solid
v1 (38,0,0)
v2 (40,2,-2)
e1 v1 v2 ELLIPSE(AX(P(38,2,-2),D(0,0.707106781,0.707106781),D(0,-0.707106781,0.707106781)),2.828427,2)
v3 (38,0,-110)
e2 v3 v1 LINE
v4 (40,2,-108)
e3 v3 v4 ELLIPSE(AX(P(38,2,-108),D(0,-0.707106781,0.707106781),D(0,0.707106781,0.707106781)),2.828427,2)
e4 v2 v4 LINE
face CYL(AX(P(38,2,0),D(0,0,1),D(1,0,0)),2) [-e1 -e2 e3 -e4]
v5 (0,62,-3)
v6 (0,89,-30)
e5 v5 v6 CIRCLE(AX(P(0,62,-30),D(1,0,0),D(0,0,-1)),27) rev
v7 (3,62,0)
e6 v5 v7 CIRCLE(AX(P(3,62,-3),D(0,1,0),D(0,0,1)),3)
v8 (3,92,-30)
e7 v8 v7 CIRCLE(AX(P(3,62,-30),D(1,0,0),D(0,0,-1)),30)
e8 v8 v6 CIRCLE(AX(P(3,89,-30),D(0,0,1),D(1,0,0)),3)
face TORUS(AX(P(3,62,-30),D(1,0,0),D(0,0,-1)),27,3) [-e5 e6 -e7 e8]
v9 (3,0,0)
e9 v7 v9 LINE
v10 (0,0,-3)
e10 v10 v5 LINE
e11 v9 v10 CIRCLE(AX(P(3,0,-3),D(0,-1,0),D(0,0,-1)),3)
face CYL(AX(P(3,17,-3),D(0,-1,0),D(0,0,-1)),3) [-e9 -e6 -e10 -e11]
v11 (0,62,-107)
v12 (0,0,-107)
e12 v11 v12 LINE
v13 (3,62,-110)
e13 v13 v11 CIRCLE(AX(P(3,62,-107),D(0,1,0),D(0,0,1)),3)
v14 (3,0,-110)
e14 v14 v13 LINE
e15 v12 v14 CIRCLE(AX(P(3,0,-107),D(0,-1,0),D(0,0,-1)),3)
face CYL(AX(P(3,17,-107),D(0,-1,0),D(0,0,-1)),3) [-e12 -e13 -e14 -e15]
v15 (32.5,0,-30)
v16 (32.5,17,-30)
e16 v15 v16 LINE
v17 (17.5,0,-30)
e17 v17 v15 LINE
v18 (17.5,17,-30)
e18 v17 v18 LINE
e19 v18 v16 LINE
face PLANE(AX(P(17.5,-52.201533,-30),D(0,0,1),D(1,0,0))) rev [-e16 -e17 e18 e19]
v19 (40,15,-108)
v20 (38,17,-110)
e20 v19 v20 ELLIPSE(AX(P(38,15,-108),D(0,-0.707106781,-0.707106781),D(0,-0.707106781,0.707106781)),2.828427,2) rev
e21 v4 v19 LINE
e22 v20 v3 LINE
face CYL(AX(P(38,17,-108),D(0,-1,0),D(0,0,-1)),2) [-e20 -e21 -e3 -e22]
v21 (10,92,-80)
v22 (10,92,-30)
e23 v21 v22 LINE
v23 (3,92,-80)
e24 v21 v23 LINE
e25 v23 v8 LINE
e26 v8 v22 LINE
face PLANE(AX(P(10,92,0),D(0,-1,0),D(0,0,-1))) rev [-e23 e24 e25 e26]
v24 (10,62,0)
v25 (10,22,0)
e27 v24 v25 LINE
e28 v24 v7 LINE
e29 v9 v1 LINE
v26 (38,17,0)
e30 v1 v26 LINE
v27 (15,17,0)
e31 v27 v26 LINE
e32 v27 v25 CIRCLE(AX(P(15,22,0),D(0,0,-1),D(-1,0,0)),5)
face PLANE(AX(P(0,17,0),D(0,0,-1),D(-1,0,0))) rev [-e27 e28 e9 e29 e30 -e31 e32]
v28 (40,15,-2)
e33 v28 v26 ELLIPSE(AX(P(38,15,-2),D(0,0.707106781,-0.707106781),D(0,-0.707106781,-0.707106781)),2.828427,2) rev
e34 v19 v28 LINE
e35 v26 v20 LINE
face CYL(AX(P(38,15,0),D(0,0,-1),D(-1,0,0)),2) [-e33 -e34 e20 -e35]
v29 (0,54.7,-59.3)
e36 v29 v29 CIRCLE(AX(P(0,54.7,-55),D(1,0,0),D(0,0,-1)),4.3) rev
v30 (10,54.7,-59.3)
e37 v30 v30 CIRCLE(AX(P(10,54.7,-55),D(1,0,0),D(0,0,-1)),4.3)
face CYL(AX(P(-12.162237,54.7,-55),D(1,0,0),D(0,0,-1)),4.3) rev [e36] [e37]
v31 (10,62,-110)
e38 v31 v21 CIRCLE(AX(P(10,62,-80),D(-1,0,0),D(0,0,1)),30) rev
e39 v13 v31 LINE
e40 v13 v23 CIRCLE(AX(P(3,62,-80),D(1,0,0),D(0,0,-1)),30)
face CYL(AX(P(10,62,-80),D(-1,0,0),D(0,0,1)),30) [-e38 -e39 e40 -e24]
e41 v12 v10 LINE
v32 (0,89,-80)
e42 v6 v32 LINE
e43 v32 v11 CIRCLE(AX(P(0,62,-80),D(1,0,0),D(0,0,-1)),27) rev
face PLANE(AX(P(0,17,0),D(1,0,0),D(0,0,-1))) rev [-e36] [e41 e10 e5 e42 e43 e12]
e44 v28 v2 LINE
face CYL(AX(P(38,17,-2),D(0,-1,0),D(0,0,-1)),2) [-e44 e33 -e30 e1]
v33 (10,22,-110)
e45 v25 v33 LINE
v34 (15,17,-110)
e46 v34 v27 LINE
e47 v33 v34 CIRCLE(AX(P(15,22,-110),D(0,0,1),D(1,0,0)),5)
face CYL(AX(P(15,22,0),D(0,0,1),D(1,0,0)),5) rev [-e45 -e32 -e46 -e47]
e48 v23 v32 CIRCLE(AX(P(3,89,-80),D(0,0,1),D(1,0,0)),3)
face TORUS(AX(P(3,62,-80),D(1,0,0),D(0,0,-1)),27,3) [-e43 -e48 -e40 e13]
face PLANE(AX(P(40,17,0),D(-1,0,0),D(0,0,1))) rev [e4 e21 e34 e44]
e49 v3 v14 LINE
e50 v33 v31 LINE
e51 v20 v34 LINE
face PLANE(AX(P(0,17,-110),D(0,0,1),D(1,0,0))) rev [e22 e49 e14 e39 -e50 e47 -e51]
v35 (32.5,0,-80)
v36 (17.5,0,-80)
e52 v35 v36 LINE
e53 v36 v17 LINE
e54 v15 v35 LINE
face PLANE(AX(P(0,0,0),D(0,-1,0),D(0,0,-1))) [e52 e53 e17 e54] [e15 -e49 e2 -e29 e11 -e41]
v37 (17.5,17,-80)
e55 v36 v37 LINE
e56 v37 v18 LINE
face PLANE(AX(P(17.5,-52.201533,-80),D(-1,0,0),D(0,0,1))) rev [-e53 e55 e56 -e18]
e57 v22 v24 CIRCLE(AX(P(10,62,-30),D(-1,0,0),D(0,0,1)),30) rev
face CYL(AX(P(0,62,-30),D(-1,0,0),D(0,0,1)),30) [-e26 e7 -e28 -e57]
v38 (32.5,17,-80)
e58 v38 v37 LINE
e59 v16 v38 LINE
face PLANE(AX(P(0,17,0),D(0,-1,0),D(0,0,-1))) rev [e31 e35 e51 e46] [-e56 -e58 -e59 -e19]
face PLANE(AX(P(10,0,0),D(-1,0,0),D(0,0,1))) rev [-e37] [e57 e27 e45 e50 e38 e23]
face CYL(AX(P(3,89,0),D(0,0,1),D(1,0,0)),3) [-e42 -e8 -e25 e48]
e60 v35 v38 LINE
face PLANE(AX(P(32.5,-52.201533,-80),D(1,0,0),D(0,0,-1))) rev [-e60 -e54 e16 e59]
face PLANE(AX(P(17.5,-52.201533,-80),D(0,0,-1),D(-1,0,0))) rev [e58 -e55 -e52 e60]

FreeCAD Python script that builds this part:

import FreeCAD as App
import Part
import Sketcher

V = App.Vector
Q = App.Units.Quantity


def edges_at(feature, points):
    """Names of the edges that pass closest to the given points."""
    edges = feature.Shape.Edges
    near = lambda p: min(range(len(edges)), key=lambda i: edges[i].distToShape(Part.Vertex(*p))[0])
    return sorted({f"Edge{near(p) + 1}" for p in points})


def add_polygon(sketch, points):
    """Adds a closed chain of lines whose ends are joined by coincident constraints."""
    first, n = sketch.GeometryCount, len(points)
    for a, b in zip(points, points[1:] + points[:1]):
        sketch.addGeometry(Part.LineSegment(App.Vector(*a, 0), App.Vector(*b, 0)), False)
    for i in range(n):
        sketch.addConstraint(Sketcher.Constraint("Coincident", first + i, 2, first + (i + 1) % n, 1))

doc = App.newDocument("Part")
body = doc.addObject("PartDesign::Body", "Body")

sketch1 = body.newObject("Sketcher::SketchObject", "Sketch")
sketch1.AttachmentSupport = (doc.getObject("XZ_Plane"), [""])
sketch1.MapMode = "FlatFace"
add_polygon(sketch1, [(0, -110), (0, 0), (40, 0), (40, -110)])
sketch1.addConstraint([
    Sketcher.Constraint("Vertical", 0),
    Sketcher.Constraint("Horizontal", 1),
    Sketcher.Constraint("Vertical", 2),
    Sketcher.Constraint("Horizontal", 3),
    Sketcher.Constraint("Coincident", 0, 2, -1, 1),
    Sketcher.Constraint("DistanceX", 1, 1, 1, 2, Q("40 mm")),
    Sketcher.Constraint("DistanceY", 0, 1, 0, 2, Q("110 mm")),
])
pad1 = body.newObject("PartDesign::Pad", "Pad")
pad1.Profile = sketch1
pad1.Length = 17
pad1.Reversed = True

sketch2 = body.newObject("Sketcher::SketchObject", "Sketch001")
sketch2.AttachmentSupport = (doc.getObject("YZ_Plane"), [""])
sketch2.MapMode = "FlatFace"
add_polygon(sketch2, [(92, 0), (17, 0), (17, -110), (92, -110)])
sketch2.addConstraint([
    Sketcher.Constraint("Horizontal", 0),
    Sketcher.Constraint("Vertical", 1),
    Sketcher.Constraint("Horizontal", 2),
    Sketcher.Constraint("Vertical", 3),
    Sketcher.Constraint("PointOnObject", 0, 2, -1),
    Sketcher.Constraint("DistanceX", 0, 2, 0, 1, Q("75 mm")),
    Sketcher.Constraint("DistanceY", 1, 2, 1, 1, Q("110 mm")),
    Sketcher.Constraint("DistanceX", -1, 1, 0, 2, Q("17 mm")),
])
pad2 = body.newObject("PartDesign::Pad", "Pad001")
pad2.Profile = sketch2
pad2.Length = 10

sketch3 = body.newObject("Sketcher::SketchObject", "Sketch002")
sketch3.AttachmentSupport = (doc.getObject("XZ_Plane"), [""])
sketch3.MapMode = "FlatFace"
sketch3.AttachmentOffset = App.Placement(V(0, 0, -17), App.Rotation())
add_polygon(sketch3, [(18, -80), (18, -30), (32, -30), (32, -80)])
sketch3.addConstraint([
    Sketcher.Constraint("Vertical", 0),
    Sketcher.Constraint("Horizontal", 1),
    Sketcher.Constraint("Vertical", 2),
    Sketcher.Constraint("Horizontal", 3),
    Sketcher.Constraint("DistanceX", 1, 1, 1, 2, Q("15 mm")),
    Sketcher.Constraint("DistanceY", 0, 1, 0, 2, Q("50 mm")),
    Sketcher.Constraint("DistanceY", 0, 2, -1, 1, Q("30 mm")),
    Sketcher.Constraint("DistanceX", -1, 1, 0, 2, Q("17.5 mm")),
])
pocket1 = body.newObject("PartDesign::Pocket", "Pocket")
pocket1.Profile = sketch3
pocket1.Length = 17
pocket1.Reversed = True

sketch4 = body.newObject("Sketcher::SketchObject", "Sketch003")
sketch4.AttachmentSupport = (doc.getObject("YZ_Plane"), [""])
sketch4.MapMode = "FlatFace"
sketch4.AttachmentOffset = App.Placement(V(0, 0, 10), App.Rotation())
sketch4.addGeometry(Part.Circle(V(54.7, -55, 0), V(0, 0, 1), 4.3), False)
sketch4.addConstraint([
    Sketcher.Constraint("Diameter", 0, Q("8.6 mm")),
    Sketcher.Constraint("DistanceY", 0, 3, -1, 1, Q("55 mm")),
    Sketcher.Constraint("DistanceX", -1, 1, 0, 3, Q("54.7 mm")),
])
pocket2 = body.newObject("PartDesign::Pocket", "Pocket001")
pocket2.Profile = sketch4
pocket2.Length = 10
doc.recompute()

fillet = body.newObject("PartDesign::Fillet", "Fillet")
fillet.Base = (pocket2, edges_at(pocket2, [(5, 92, 0), (5, 92, -110)]))
fillet.Radius = 30
doc.recompute()

fillet2 = body.newObject("PartDesign::Fillet", "Fillet001")
fillet2.Base = (fillet, edges_at(fillet, [
    (0, 31, 0),
    (0, 92, -55),
    (0, 31, -110),
    (0, 83.213, -101.213),
    (0, 83.213, -8.787),
]))
fillet2.Radius = 3
doc.recompute()

fillet3 = body.newObject("PartDesign::Fillet", "Fillet002")
fillet3.Base = (fillet2, edges_at(fillet2, [(10, 17, -55)]))
fillet3.Radius = 5
doc.recompute()

fillet4 = body.newObject("PartDesign::Fillet", "Fillet003")
fillet4.Base = (fillet3, edges_at(fillet3, [
    (40, 17, -55),
    (40, 0, -55),
    (40, 8.5, -110),
    (40, 8.5, 0),
]))
fillet4.Radius = 2

doc.recompute()
